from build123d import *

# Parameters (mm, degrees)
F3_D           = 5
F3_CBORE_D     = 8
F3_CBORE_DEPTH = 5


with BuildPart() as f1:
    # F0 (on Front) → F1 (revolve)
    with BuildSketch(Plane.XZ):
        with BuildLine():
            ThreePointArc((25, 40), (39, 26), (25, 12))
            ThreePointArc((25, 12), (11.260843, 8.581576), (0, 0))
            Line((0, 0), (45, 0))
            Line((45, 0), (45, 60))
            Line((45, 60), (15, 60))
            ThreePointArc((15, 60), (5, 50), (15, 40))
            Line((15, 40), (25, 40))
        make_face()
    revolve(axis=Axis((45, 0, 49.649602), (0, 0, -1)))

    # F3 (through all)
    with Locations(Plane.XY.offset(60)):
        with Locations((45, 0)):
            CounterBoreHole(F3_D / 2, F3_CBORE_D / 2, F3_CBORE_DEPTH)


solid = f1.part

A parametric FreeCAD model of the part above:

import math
import FreeCAD as App
import Part
import Sketcher
Q = App.Units.Quantity

doc = App.newDocument("Part")
params = doc.addObject("Spreadsheet::Sheet", "Params")
for row, (alias, value) in enumerate([
    ("sketch1_radius", "14 mm"),
    ("sketch1_radius2", "35.000001 mm"),
    ("sketch1_radius3", "10 mm"),
    ("sketch1_width", "45 mm"),
    ("sketch1_width2", "30 mm"),
    ("revolution_angle", "360 deg"),
    ("sketch2_diameter", "5 mm"),
    ("hole_diameter", "5 mm"),
    ("hole_cbore_diameter", "8 mm"),
    ("hole_cbore_depth", "5 mm"),
], start=1):
    params.set(f"A{row}", alias)
    params.set(f"B{row}", "=" + value)
    params.setAlias(f"B{row}", alias)

body = doc.addObject("PartDesign::Body", "Body")

sketch1 = body.newObject("Sketcher::SketchObject", "Sketch")
sketch1.AttachmentSupport = (doc.getObject("XZ_Plane"), [""])
sketch1.MapMode = "FlatFace"
sketch1.addGeometry([
    Part.ArcOfCircle(Part.Circle(App.Vector(25, 26, 0), App.Vector(0, 0, 1), 14), math.radians(-90), math.radians(90)),
    Part.ArcOfCircle(Part.Circle(App.Vector(26, -23, 0), App.Vector(0, 0, 1), 35), math.radians(92), math.radians(139)),
    Part.LineSegment(App.Vector(0, 0, 0), App.Vector(45, 0, 0)),
    Part.LineSegment(App.Vector(45, 0, 0), App.Vector(45, 60, 0)),
    Part.LineSegment(App.Vector(45, 60, 0), App.Vector(15, 60, 0)),
    Part.ArcOfCircle(Part.Circle(App.Vector(15, 50, 0), App.Vector(0, 0, 1), 10), math.radians(90), math.radians(270)),
    Part.LineSegment(App.Vector(15, 40, 0), App.Vector(25, 40, 0)),
], False)
sketch1.addGeometry(Part.LineSegment(App.Vector(45, 60, 0), App.Vector(45, -23, 0)), True)
sketch1.addConstraint([
    Sketcher.Constraint("Coincident", 0, 1, 1, 1),
    Sketcher.Constraint("Coincident", 1, 2, 2, 1),
    Sketcher.Constraint("Coincident", 2, 2, 3, 1),
    Sketcher.Constraint("Coincident", 3, 2, 4, 1),
    Sketcher.Constraint("Tangent", 4, 2, 5, 1),
    Sketcher.Constraint("Tangent", 5, 2, 6, 1),
    Sketcher.Constraint("Tangent", 6, 2, 0, 2),
    Sketcher.Constraint("Horizontal", 2),
    Sketcher.Constraint("Vertical", 3),
    Sketcher.Constraint("Horizontal", 4),
    Sketcher.Constraint("Horizontal", 6),
    Sketcher.Constraint("Vertical", 7),
    Sketcher.Constraint("Coincident", 1, 2, -1, 1),
    Sketcher.Constraint("Coincident", 7, 1, 3, 2),
    Sketcher.Constraint("Horizontal", 1, 3, 7, 2),
    Sketcher.Constraint("Vertical", 0, 1, 6, 2),
    Sketcher.Constraint("Radius", 0, Q("14 mm")),
    Sketcher.Constraint("Radius", 1, Q("35.000001 mm")),
    Sketcher.Constraint("Radius", 5, Q("10 mm")),
    Sketcher.Constraint("DistanceX", 2, 1, 2, 2, Q("45 mm")),
    Sketcher.Constraint("DistanceX", 4, 2, 4, 1, Q("30 mm")),
    Sketcher.Constraint("DistanceX", 6, 1, 6, 2, Q("10 mm")),
    Sketcher.Constraint("DistanceY", 3, 1, 3, 2, Q("60 mm")),
])
sketch1.setExpression("Constraints[16]", "Params.sketch1_radius")
sketch1.setExpression("Constraints[17]", "Params.sketch1_radius2")
sketch1.setExpression("Constraints[18]", "Params.sketch1_radius3")
sketch1.setExpression("Constraints[19]", "Params.sketch1_width")
sketch1.setExpression("Constraints[20]", "Params.sketch1_width2")
revolution = body.newObject("PartDesign::Revolution", "Revolution")
revolution.Profile = sketch1
revolution.ReferenceAxis = (sketch1, ["Axis0"])
revolution.setExpression("Angle", "Params.revolution_angle")

sketch2 = body.newObject("Sketcher::SketchObject", "Sketch001")
sketch2.AttachmentSupport = (doc.getObject("XY_Plane"), [""])
sketch2.MapMode = "FlatFace"
sketch2.AttachmentOffset = App.Placement(App.Vector(0, 0, 60), App.Rotation())
sketch2.addGeometry(Part.Circle(App.Vector(45, 0, 0), App.Vector(0, 0, 1), 2.5), False)
sketch2.addConstraint([
    Sketcher.Constraint("PointOnObject", 0, 3, -1),
    Sketcher.Constraint("Diameter", 0, Q("5 mm")),
    Sketcher.Constraint("DistanceX", -1, 1, 0, 3, Q("45 mm")),
])
sketch2.setExpression("Constraints[1]", "Params.sketch2_diameter")
doc.recompute()
hole = body.newObject("PartDesign::Hole", "Hole")
hole.Profile = sketch2
hole.ThreadType = "None"
hole.setExpression("Diameter", "Params.hole_diameter")
hole.DepthType = "ThroughAll"
hole.HoleCutType = "Counterbore"
hole.setExpression("HoleCutDiameter", "Params.hole_cbore_diameter")
hole.setExpression("HoleCutDepth", "Params.hole_cbore_depth")

doc.recompute()
